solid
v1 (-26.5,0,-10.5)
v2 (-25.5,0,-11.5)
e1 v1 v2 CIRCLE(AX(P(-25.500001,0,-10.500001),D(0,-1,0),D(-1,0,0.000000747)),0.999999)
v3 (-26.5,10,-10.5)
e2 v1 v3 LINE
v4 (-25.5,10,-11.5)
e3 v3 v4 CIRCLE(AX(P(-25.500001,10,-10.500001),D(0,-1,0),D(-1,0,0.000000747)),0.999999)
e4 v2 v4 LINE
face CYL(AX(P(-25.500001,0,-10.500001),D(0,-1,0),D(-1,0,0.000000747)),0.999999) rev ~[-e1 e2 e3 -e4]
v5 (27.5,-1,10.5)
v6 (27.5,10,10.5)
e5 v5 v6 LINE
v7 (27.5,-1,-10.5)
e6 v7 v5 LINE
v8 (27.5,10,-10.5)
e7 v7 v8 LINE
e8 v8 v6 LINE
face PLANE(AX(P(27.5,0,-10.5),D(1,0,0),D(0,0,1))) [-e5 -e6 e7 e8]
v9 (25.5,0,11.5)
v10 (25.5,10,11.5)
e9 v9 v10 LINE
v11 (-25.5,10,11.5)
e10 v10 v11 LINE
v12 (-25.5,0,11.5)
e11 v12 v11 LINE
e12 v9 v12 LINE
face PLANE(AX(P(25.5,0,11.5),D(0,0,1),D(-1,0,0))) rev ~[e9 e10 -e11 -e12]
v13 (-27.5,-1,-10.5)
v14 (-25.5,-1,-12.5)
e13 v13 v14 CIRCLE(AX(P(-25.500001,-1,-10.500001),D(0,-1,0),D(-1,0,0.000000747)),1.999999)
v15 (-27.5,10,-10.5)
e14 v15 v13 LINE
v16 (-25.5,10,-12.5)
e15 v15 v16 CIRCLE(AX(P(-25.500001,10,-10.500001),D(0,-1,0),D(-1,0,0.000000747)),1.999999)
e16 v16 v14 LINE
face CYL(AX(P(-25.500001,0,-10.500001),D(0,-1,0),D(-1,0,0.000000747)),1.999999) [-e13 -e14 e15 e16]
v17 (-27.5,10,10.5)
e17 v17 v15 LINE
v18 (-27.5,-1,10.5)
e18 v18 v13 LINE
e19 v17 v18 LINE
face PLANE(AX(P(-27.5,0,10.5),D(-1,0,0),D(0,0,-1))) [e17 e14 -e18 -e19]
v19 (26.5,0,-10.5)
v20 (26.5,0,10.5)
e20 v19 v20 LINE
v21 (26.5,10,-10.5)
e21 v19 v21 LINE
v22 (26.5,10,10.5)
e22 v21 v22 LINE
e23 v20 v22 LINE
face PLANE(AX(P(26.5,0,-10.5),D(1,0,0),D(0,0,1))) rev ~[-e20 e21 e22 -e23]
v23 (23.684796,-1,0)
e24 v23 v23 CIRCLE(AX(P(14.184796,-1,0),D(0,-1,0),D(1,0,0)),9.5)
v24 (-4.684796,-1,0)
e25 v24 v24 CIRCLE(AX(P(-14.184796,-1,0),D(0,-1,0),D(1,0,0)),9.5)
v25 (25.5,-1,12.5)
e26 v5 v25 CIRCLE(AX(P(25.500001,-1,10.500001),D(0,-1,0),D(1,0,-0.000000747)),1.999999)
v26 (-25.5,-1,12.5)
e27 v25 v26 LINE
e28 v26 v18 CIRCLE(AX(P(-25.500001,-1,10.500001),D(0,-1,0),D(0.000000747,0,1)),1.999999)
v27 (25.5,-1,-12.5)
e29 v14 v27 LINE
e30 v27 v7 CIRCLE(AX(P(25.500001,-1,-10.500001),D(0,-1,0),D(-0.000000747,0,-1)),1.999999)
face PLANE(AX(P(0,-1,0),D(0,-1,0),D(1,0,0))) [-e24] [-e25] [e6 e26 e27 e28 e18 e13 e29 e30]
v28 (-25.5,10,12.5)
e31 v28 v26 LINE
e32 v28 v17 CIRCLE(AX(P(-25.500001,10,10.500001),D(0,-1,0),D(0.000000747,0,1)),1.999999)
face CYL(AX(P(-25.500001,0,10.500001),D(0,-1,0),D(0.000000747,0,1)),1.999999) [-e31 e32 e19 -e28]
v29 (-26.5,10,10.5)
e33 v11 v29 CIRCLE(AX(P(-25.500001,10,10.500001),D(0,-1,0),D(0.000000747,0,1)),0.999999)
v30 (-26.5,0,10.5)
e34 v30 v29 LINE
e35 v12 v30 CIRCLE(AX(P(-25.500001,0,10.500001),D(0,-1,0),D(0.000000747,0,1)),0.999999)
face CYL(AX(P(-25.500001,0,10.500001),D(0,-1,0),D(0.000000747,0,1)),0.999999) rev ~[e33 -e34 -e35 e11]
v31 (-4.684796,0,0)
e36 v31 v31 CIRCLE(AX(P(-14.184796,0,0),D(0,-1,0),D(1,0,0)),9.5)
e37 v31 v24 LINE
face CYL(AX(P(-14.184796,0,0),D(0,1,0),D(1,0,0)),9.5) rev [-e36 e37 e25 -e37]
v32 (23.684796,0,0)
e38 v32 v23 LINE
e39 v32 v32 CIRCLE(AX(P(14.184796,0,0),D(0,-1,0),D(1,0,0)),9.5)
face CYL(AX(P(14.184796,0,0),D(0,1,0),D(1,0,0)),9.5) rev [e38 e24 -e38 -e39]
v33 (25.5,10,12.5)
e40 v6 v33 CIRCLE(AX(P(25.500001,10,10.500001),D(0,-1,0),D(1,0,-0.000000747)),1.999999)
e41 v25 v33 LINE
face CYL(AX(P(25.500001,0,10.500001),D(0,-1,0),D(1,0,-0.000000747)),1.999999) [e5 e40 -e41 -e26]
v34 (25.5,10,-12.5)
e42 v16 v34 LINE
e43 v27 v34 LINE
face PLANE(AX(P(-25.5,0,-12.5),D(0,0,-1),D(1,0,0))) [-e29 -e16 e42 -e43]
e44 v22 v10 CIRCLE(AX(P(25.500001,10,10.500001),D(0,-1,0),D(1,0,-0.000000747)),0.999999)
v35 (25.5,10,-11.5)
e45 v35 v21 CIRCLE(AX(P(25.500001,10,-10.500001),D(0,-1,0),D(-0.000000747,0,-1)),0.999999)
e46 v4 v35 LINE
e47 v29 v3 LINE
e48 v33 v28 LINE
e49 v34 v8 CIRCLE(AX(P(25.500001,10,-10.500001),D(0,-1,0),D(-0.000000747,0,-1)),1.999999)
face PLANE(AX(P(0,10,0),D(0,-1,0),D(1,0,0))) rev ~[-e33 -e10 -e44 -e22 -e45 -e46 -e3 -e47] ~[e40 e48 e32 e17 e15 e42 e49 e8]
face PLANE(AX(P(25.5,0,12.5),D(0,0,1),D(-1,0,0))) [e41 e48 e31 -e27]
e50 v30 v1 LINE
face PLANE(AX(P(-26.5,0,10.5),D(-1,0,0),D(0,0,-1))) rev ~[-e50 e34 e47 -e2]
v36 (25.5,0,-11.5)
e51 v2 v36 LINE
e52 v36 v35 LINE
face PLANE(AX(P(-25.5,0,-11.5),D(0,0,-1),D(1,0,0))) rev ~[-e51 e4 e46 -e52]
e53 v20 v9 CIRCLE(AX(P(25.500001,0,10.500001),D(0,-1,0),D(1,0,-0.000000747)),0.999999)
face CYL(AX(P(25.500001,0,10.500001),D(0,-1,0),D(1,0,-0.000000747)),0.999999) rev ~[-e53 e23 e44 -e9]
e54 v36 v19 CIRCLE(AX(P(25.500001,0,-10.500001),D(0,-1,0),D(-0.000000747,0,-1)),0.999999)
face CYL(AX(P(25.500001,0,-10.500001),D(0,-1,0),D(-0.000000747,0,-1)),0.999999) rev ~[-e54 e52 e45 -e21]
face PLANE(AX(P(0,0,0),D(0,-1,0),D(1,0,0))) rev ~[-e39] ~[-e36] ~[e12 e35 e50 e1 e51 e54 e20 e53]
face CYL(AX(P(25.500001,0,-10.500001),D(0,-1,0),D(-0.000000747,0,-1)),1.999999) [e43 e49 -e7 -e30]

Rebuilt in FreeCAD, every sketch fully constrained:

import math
import FreeCAD as App
import Part
import Sketcher

V = App.Vector
Q = App.Units.Quantity

doc = App.newDocument("Part")
body = doc.addObject("PartDesign::Body", "Body")

# Sketch on XZ plane
sketch1 = doc.addObject("Sketcher::SketchObject", "Sketch")
body.addObject(sketch1)
sketch1.AttachmentSupport = (doc.XZ_Plane, [""])
sketch1.MapMode = "FlatFace"
sketch1.addGeometry([
    Part.LineSegment(V(25.5, 12.5, 0), V(-25.5, 12.5, 0)),  # 0
    Part.ArcOfCircle(Part.Circle(V(-25.5, 10.5, 0), V(0, 0, 1), 2), math.radians(90), math.radians(180)),  # 1
    Part.LineSegment(V(-27.5, 10.5, 0), V(-27.5, -10.5, 0)),  # 2
    Part.ArcOfCircle(Part.Circle(V(-25.5, -10.5, 0), V(0, 0, 1), 2), math.radians(180), math.radians(270)),  # 3
    Part.LineSegment(V(-25.5, -12.5, 0), V(25.5, -12.5, 0)),  # 4
    Part.ArcOfCircle(Part.Circle(V(25.5, -10.5, 0), V(0, 0, 1), 2), math.radians(-90), math.radians(0)),  # 5
    Part.LineSegment(V(27.5, -10.5, 0), V(27.5, 10.5, 0)),  # 6
    Part.ArcOfCircle(Part.Circle(V(25.5, 10.5, 0), V(0, 0, 1), 2), math.radians(0), math.radians(90)),  # 7
    Part.Circle(V(-14.2, 0, 0), V(0, 0, 1), 9.5),  # 8
    Part.Circle(V(14.2, 0, 0), V(0, 0, 1), 9.5),  # 9
], False)
sketch1.addConstraint([
    Sketcher.Constraint("Tangent", 0, 2, 1, 1),
    Sketcher.Constraint("Tangent", 1, 2, 2, 1),
    Sketcher.Constraint("Tangent", 2, 2, 3, 1),
    Sketcher.Constraint("Tangent", 3, 2, 4, 1),
    Sketcher.Constraint("Tangent", 4, 2, 5, 1),
    Sketcher.Constraint("Tangent", 5, 2, 6, 1),
    Sketcher.Constraint("Tangent", 6, 2, 7, 1),
    Sketcher.Constraint("Tangent", 7, 2, 0, 1),
    Sketcher.Constraint("Horizontal", 0),
    Sketcher.Constraint("Vertical", 2),
    Sketcher.Constraint("Horizontal", 4),
    Sketcher.Constraint("Vertical", 6),
    Sketcher.Constraint("Equal", 1, 3),
    Sketcher.Constraint("Equal", 3, 5),
    Sketcher.Constraint("Equal", 5, 7),
    Sketcher.Constraint("Equal", 8, 9),
    Sketcher.Constraint("Symmetric", 1, 3, 5, 3, -1, 1),
    Sketcher.Constraint("Symmetric", 8, 3, 9, 3, -1, 1),
    Sketcher.Constraint("PointOnObject", 8, 3, -1),
    Sketcher.Constraint("Diameter", 8, Q("19 mm")),
    Sketcher.Constraint("Radius", 1, Q("1.999999 mm")),
    Sketcher.Constraint("DistanceX", 0, 2, 0, 1, Q("51 mm")),
    Sketcher.Constraint("DistanceY", 2, 2, 2, 1, Q("21 mm")),
    Sketcher.Constraint("DistanceX", 8, 3, -1, 1, Q("14.184796 mm")),
])
pad1 = doc.addObject("PartDesign::Pad", "Pad")
body.addObject(pad1)
pad1.Profile = sketch1
pad1.Length = 1

# Sketch on XZ plane
sketch2 = doc.addObject("Sketcher::SketchObject", "Sketch001")
body.addObject(sketch2)
sketch2.AttachmentSupport = (doc.XZ_Plane, [""])
sketch2.MapMode = "FlatFace"
sketch2.addGeometry([
    Part.LineSegment(V(25.5, 12.5, 0), V(-25.5, 12.5, 0)),  # 0
    Part.ArcOfCircle(Part.Circle(V(-25.5, 10.5, 0), V(0, 0, 1), 2), math.radians(90), math.radians(180)),  # 1
    Part.LineSegment(V(-27.5, 10.5, 0), V(-27.5, -10.5, 0)),  # 2
    Part.ArcOfCircle(Part.Circle(V(-25.5, -10.5, 0), V(0, 0, 1), 2), math.radians(180), math.radians(270)),  # 3
    Part.LineSegment(V(-25.5, -12.5, 0), V(25.5, -12.5, 0)),  # 4
    Part.ArcOfCircle(Part.Circle(V(25.5, -10.5, 0), V(0, 0, 1), 2), math.radians(-90), math.radians(0)),  # 5
    Part.LineSegment(V(27.5, -10.5, 0), V(27.5, 10.5, 0)),  # 6
    Part.ArcOfCircle(Part.Circle(V(25.5, 10.5, 0), V(0, 0, 1), 2), math.radians(0), math.radians(90)),  # 7
    Part.Circle(V(-14.2, 0, 0), V(0, 0, 1), 9.5),  # 8
    Part.Circle(V(14.2, 0, 0), V(0, 0, 1), 9.5),  # 9
], False)
sketch2.addConstraint([
    Sketcher.Constraint("Tangent", 0, 2, 1, 1),
    Sketcher.Constraint("Tangent", 1, 2, 2, 1),
    Sketcher.Constraint("Tangent", 2, 2, 3, 1),
    Sketcher.Constraint("Tangent", 3, 2, 4, 1),
    Sketcher.Constraint("Tangent", 4, 2, 5, 1),
    Sketcher.Constraint("Tangent", 5, 2, 6, 1),
    Sketcher.Constraint("Tangent", 6, 2, 7, 1),
    Sketcher.Constraint("Tangent", 7, 2, 0, 1),
    Sketcher.Constraint("Horizontal", 0),
    Sketcher.Constraint("Vertical", 2),
    Sketcher.Constraint("Horizontal", 4),
    Sketcher.Constraint("Vertical", 6),
    Sketcher.Constraint("Equal", 1, 3),
    Sketcher.Constraint("Equal", 3, 5),
    Sketcher.Constraint("Equal", 5, 7),
    Sketcher.Constraint("Equal", 8, 9),
    Sketcher.Constraint("Symmetric", 1, 3, 5, 3, -1, 1),
    Sketcher.Constraint("Symmetric", 8, 3, 9, 3, -1, 1),
    Sketcher.Constraint("PointOnObject", 8, 3, -1),
    Sketcher.Constraint("Diameter", 8, Q("19 mm")),
    Sketcher.Constraint("Radius", 1, Q("1.999999 mm")),
    Sketcher.Constraint("DistanceX", 0, 2, 0, 1, Q("51 mm")),
    Sketcher.Constraint("DistanceY", 2, 2, 2, 1, Q("21 mm")),
    Sketcher.Constraint("DistanceX", 8, 3, -1, 1, Q("14.184796 mm")),
])
pad2 = doc.addObject("PartDesign::Pad", "Pad001")
body.addObject(pad2)
pad2.Profile = sketch2
pad2.Length = 10
pad2.Reversed = True

# Sketch on XZ plane
sketch3 = doc.addObject("Sketcher::SketchObject", "Sketch002")
body.addObject(sketch3)
sketch3.AttachmentSupport = (doc.XZ_Plane, [""])
sketch3.MapMode = "FlatFace"
sketch3.addGeometry([
    Part.ArcOfCircle(Part.Circle(V(25.5, 10.5, 0), V(0, 0, 1), 1), math.radians(0), math.radians(90)),  # 0
    Part.LineSegment(V(25.5, 11.5, 0), V(-25.5, 11.5, 0)),  # 1
    Part.ArcOfCircle(Part.Circle(V(-25.5, 10.5, 0), V(0, 0, 1), 1), math.radians(90), math.radians(180)),  # 2
    Part.LineSegment(V(-26.5, 10.5, 0), V(-26.5, -10.5, 0)),  # 3
    Part.ArcOfCircle(Part.Circle(V(-25.5, -10.5, 0), V(0, 0, 1), 1), math.radians(180), math.radians(270)),  # 4
    Part.LineSegment(V(-25.5, -11.5, 0), V(25.5, -11.5, 0)),  # 5
    Part.ArcOfCircle(Part.Circle(V(25.5, -10.5, 0), V(0, 0, 1), 1), math.radians(-90), math.radians(0)),  # 6
    Part.LineSegment(V(26.5, -10.5, 0), V(26.5, 10.5, 0)),  # 7
], False)
sketch3.addConstraint([
    Sketcher.Constraint("Tangent", 0, 2, 1, 1),
    Sketcher.Constraint("Tangent", 1, 2, 2, 1),
    Sketcher.Constraint("Tangent", 2, 2, 3, 1),
    Sketcher.Constraint("Tangent", 3, 2, 4, 1),
    Sketcher.Constraint("Tangent", 4, 2, 5, 1),
    Sketcher.Constraint("Tangent", 5, 2, 6, 1),
    Sketcher.Constraint("Tangent", 6, 2, 7, 1),
    Sketcher.Constraint("Tangent", 7, 2, 0, 1),
    Sketcher.Constraint("Horizontal", 1),
    Sketcher.Constraint("Vertical", 3),
    Sketcher.Constraint("Horizontal", 5),
    Sketcher.Constraint("Vertical", 7),
    Sketcher.Constraint("Equal", 0, 2),
    Sketcher.Constraint("Equal", 2, 4),
    Sketcher.Constraint("Equal", 4, 6),
    Sketcher.Constraint("Symmetric", 0, 3, 4, 3, -1, 1),
    Sketcher.Constraint("Radius", 0, Q("0.999999 mm")),
    Sketcher.Constraint("DistanceX", 1, 2, 1, 1, Q("51 mm")),
    Sketcher.Constraint("DistanceY", 3, 2, 3, 1, Q("21 mm")),
])
pocket1 = doc.addObject("PartDesign::Pocket", "Pocket")
body.addObject(pocket1)
pocket1.Profile = sketch3
pocket1.Length = 35.9

doc.recompute()
